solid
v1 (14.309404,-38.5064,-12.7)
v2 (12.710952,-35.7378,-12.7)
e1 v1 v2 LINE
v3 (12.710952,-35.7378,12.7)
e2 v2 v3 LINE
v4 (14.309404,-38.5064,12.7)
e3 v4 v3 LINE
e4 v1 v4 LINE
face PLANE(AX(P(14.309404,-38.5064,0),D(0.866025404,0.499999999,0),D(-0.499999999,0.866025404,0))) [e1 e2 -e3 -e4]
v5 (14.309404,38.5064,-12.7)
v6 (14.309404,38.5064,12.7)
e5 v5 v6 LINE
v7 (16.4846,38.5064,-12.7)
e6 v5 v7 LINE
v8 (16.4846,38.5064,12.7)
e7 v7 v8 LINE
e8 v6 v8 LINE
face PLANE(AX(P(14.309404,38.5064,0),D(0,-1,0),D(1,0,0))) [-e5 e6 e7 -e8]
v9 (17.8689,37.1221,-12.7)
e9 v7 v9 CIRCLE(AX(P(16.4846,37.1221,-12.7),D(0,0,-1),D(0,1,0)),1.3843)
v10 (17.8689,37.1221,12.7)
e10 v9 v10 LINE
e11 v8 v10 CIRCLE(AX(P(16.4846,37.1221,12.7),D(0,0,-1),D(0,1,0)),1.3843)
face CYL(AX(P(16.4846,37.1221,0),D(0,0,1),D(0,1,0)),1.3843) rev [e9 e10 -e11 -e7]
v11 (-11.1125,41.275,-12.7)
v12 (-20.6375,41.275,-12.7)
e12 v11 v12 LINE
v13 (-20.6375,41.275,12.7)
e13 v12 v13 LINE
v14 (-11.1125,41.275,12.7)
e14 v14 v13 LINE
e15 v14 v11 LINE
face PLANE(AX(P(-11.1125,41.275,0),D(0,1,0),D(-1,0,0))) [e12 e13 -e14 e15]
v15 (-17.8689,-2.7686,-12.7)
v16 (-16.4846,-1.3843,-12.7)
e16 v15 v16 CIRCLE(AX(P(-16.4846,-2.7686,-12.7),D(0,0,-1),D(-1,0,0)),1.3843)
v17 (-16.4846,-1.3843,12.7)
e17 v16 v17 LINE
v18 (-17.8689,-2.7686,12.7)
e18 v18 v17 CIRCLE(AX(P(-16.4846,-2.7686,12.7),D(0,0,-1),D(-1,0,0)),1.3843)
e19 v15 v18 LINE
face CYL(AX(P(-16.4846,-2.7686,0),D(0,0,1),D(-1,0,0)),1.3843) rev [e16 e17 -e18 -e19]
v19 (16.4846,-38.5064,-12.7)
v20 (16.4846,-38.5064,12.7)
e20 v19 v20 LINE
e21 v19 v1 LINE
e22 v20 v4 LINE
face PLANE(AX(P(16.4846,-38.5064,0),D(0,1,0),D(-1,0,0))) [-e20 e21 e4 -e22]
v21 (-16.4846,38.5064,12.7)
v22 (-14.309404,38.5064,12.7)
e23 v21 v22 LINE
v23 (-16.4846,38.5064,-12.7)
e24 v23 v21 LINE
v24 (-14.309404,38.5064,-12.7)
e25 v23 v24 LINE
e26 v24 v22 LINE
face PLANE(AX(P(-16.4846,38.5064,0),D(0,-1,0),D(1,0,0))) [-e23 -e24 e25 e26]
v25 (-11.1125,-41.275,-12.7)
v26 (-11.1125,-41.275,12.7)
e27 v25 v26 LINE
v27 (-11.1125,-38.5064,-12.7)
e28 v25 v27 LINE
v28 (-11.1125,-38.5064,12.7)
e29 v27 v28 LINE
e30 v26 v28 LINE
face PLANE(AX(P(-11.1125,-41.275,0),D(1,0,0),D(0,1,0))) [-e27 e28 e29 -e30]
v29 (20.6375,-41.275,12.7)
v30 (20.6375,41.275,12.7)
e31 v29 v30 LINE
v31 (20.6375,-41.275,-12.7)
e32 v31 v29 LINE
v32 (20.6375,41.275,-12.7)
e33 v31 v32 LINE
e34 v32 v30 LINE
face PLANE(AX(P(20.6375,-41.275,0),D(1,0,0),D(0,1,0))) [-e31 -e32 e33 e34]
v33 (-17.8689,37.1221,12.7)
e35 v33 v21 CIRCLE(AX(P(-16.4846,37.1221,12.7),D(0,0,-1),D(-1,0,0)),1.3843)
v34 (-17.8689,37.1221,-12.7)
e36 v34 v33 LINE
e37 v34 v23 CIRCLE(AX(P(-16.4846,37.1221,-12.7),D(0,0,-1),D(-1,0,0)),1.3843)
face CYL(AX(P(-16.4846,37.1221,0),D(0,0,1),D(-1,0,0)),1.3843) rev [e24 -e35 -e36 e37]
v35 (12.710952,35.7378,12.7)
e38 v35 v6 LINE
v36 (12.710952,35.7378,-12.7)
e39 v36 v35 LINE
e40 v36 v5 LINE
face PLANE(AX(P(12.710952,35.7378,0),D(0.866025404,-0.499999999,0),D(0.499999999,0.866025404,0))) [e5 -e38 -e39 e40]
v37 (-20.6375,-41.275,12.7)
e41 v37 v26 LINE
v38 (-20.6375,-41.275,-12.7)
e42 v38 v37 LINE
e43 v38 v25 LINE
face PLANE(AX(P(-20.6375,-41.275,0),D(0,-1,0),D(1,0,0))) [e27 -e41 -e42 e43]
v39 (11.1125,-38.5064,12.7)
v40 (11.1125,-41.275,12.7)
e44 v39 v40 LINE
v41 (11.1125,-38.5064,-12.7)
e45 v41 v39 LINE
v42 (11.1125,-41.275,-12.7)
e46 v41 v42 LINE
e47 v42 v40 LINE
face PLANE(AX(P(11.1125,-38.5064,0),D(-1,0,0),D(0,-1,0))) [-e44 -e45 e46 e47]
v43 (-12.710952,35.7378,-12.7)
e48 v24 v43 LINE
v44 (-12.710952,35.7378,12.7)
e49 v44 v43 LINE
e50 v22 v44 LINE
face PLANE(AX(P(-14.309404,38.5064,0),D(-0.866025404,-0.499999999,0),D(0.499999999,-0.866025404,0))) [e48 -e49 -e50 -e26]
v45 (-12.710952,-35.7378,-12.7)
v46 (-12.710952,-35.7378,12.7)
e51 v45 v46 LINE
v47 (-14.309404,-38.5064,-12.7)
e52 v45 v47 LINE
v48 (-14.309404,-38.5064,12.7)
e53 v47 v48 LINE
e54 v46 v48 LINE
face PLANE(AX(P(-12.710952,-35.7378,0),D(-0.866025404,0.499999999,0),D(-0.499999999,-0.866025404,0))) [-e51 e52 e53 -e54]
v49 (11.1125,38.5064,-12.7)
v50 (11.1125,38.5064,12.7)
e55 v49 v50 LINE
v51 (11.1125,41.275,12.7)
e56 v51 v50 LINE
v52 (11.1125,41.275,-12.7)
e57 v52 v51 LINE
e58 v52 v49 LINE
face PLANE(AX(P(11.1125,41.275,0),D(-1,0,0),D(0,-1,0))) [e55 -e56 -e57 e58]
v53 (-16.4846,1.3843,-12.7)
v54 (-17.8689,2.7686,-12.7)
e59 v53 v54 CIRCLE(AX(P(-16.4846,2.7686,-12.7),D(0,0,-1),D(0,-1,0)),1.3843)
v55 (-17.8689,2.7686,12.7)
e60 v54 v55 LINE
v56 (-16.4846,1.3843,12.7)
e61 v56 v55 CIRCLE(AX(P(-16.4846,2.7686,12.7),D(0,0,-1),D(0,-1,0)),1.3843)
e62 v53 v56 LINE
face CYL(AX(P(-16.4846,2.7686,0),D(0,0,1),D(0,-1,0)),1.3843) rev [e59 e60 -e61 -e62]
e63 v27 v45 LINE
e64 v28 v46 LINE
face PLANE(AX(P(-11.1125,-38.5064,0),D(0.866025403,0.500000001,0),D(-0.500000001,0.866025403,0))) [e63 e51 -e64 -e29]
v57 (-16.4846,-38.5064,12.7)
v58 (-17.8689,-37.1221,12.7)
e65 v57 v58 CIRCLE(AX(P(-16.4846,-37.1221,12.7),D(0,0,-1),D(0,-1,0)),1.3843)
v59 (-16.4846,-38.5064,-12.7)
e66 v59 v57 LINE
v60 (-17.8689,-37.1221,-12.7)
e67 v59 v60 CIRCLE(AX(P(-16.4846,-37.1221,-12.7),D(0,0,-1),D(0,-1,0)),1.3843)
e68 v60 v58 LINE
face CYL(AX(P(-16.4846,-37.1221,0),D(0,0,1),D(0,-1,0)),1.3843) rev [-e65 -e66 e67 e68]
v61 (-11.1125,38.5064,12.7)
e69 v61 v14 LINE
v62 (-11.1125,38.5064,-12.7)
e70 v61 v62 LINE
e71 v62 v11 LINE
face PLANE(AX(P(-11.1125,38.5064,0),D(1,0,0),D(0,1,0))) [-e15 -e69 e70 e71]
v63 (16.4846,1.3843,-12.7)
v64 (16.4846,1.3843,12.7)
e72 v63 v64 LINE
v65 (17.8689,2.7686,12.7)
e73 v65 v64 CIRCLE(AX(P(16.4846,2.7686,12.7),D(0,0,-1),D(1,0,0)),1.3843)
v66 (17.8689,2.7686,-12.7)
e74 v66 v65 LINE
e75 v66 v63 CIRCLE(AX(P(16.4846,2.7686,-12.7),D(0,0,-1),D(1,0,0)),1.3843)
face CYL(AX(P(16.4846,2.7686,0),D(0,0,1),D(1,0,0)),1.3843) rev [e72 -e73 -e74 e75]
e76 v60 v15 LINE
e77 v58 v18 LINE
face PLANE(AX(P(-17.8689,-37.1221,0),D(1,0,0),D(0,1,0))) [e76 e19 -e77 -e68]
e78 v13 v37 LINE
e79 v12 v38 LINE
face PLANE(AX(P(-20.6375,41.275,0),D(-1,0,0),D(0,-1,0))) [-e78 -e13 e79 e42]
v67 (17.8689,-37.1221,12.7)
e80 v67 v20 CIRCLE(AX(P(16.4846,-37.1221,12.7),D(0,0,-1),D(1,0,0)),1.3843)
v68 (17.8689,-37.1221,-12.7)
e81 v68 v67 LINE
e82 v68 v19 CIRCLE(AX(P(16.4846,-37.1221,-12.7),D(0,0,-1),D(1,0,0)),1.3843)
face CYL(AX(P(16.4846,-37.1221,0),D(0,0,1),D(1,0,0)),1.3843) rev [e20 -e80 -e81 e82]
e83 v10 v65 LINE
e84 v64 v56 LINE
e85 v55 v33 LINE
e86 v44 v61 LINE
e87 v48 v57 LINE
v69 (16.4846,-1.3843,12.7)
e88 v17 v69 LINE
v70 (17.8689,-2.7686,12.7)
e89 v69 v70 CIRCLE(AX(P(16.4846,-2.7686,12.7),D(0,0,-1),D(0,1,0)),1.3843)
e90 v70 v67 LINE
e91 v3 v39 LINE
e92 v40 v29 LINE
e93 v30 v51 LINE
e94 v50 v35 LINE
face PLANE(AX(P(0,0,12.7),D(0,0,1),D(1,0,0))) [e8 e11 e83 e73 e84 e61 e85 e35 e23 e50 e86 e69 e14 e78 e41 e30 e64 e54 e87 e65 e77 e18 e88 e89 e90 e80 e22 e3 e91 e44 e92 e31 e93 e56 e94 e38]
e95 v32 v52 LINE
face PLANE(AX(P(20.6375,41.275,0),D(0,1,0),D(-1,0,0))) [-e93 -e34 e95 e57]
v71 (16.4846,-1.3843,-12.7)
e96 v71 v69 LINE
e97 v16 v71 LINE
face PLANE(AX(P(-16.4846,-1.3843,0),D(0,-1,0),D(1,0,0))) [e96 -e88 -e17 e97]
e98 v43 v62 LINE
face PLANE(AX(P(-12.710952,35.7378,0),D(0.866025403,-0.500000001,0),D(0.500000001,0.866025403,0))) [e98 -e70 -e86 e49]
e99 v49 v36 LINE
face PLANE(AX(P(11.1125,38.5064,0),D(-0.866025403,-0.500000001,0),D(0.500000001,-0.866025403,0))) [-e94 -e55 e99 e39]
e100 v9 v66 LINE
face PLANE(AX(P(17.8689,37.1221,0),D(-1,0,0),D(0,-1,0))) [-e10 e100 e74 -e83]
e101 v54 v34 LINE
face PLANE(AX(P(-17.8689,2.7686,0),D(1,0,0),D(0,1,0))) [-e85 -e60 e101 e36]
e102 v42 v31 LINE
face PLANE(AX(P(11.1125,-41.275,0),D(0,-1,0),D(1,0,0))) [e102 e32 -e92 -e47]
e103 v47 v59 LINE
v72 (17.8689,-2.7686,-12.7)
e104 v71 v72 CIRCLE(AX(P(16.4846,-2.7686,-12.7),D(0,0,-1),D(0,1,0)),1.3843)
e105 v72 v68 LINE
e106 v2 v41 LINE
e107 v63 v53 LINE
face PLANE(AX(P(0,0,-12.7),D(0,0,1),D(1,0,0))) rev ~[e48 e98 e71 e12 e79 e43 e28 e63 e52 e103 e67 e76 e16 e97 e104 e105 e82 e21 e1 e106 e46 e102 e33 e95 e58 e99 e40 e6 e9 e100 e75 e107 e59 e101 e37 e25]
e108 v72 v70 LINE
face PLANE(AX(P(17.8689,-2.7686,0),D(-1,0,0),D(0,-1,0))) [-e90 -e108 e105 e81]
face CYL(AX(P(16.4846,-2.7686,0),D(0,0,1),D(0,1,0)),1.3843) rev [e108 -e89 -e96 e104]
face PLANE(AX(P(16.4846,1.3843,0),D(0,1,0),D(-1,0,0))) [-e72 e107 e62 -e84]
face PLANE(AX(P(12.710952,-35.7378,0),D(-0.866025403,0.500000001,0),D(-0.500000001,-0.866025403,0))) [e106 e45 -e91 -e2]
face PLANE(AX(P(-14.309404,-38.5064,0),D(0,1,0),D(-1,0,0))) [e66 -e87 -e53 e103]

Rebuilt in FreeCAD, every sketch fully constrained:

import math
import FreeCAD as App
import Part
import Sketcher
Q = App.Units.Quantity

doc = App.newDocument("Part")
body = doc.addObject("PartDesign::Body", "Body")

sketch1 = doc.addObject("Sketcher::SketchObject", "Sketch")
body.addObject(sketch1)
sketch1.AttachmentSupport = (doc.XY_Plane, [""])
sketch1.MapMode = "FlatFace"
sketch1.addGeometry([
    Part.LineSegment(App.Vector(-11.1125, 41.275, 0), App.Vector(-20.6375, 41.275, 0)),
    Part.LineSegment(App.Vector(-20.6375, 41.275, 0), App.Vector(-20.6375, -41.275, 0)),
    Part.LineSegment(App.Vector(-20.6375, -41.275, 0), App.Vector(-11.1125, -41.275, 0)),
    Part.LineSegment(App.Vector(-11.1125, -41.275, 0), App.Vector(-11.1125, -38.5064, 0)),
    Part.LineSegment(App.Vector(-11.1125, -38.5064, 0), App.Vector(-12.710952, -35.7378, 0)),
    Part.LineSegment(App.Vector(-12.710952, -35.7378, 0), App.Vector(-14.309404, -38.5064, 0)),
    Part.LineSegment(App.Vector(-14.309404, -38.5064, 0), App.Vector(-16.4846, -38.5064, 0)),
    Part.ArcOfCircle(Part.Circle(App.Vector(-16.4846, -37.1221, 0), App.Vector(0, 0, 1), 1.3843), math.radians(-180), math.radians(-90)),
    Part.LineSegment(App.Vector(-17.8689, -37.1221, 0), App.Vector(-17.8689, -2.7686, 0)),
    Part.ArcOfCircle(Part.Circle(App.Vector(-16.4846, -2.7686, 0), App.Vector(0, 0, 1), 1.3843), math.radians(90), math.radians(180)),
    Part.LineSegment(App.Vector(-16.4846, -1.3843, 0), App.Vector(16.4846, -1.3843, 0)),
    Part.ArcOfCircle(Part.Circle(App.Vector(16.4846, -2.7686, 0), App.Vector(0, 0, 1), 1.3843), math.radians(0), math.radians(90)),
    Part.LineSegment(App.Vector(17.8689, -2.7686, 0), App.Vector(17.8689, -37.1221, 0)),
    Part.ArcOfCircle(Part.Circle(App.Vector(16.4846, -37.1221, 0), App.Vector(0, 0, 1), 1.3843), math.radians(-90), math.radians(0)),
    Part.LineSegment(App.Vector(16.4846, -38.5064, 0), App.Vector(14.309404, -38.5064, 0)),
    Part.LineSegment(App.Vector(14.309404, -38.5064, 0), App.Vector(12.710952, -35.7378, 0)),
    Part.LineSegment(App.Vector(12.710952, -35.7378, 0), App.Vector(11.1125, -38.5064, 0)),
    Part.LineSegment(App.Vector(11.1125, -38.5064, 0), App.Vector(11.1125, -41.275, 0)),
    Part.LineSegment(App.Vector(11.1125, -41.275, 0), App.Vector(20.6375, -41.275, 0)),
    Part.LineSegment(App.Vector(20.6375, -41.275, 0), App.Vector(20.6375, 41.275, 0)),
    Part.LineSegment(App.Vector(20.6375, 41.275, 0), App.Vector(11.1125, 41.275, 0)),
    Part.LineSegment(App.Vector(11.1125, 41.275, 0), App.Vector(11.1125, 38.5064, 0)),
    Part.LineSegment(App.Vector(11.1125, 38.5064, 0), App.Vector(12.710952, 35.7378, 0)),
    Part.LineSegment(App.Vector(12.710952, 35.7378, 0), App.Vector(14.309404, 38.5064, 0)),
    Part.LineSegment(App.Vector(14.309404, 38.5064, 0), App.Vector(16.4846, 38.5064, 0)),
    Part.ArcOfCircle(Part.Circle(App.Vector(16.4846, 37.1221, 0), App.Vector(0, 0, 1), 1.3843), math.radians(0), math.radians(90)),
    Part.LineSegment(App.Vector(17.8689, 37.1221, 0), App.Vector(17.8689, 2.7686, 0)),
    Part.ArcOfCircle(Part.Circle(App.Vector(16.4846, 2.7686, 0), App.Vector(0, 0, 1), 1.3843), math.radians(-90), math.radians(0)),
    Part.LineSegment(App.Vector(16.4846, 1.3843, 0), App.Vector(-16.4846, 1.3843, 0)),
    Part.ArcOfCircle(Part.Circle(App.Vector(-16.4846, 2.7686, 0), App.Vector(0, 0, 1), 1.3843), math.radians(-180), math.radians(-90)),
    Part.LineSegment(App.Vector(-17.8689, 2.7686, 0), App.Vector(-17.8689, 37.1221, 0)),
    Part.ArcOfCircle(Part.Circle(App.Vector(-16.4846, 37.1221, 0), App.Vector(0, 0, 1), 1.3843), math.radians(90), math.radians(180)),
    Part.LineSegment(App.Vector(-16.4846, 38.5064, 0), App.Vector(-14.309404, 38.5064, 0)),
    Part.LineSegment(App.Vector(-14.309404, 38.5064, 0), App.Vector(-12.710952, 35.7378, 0)),
    Part.LineSegment(App.Vector(-12.710952, 35.7378, 0), App.Vector(-11.1125, 38.5064, 0)),
    Part.LineSegment(App.Vector(-11.1125, 38.5064, 0), App.Vector(-11.1125, 41.275, 0)),
], False)
sketch1.addConstraint([
    Sketcher.Constraint("Coincident", 0, 2, 1, 1),
    Sketcher.Constraint("Coincident", 1, 2, 2, 1),
    Sketcher.Constraint("Coincident", 2, 2, 3, 1),
    Sketcher.Constraint("Coincident", 3, 2, 4, 1),
    Sketcher.Constraint("Coincident", 4, 2, 5, 1),
    Sketcher.Constraint("Coincident", 5, 2, 6, 1),
    Sketcher.Constraint("Tangent", 6, 2, 7, 2),
    Sketcher.Constraint("Tangent", 7, 1, 8, 1),
    Sketcher.Constraint("Tangent", 8, 2, 9, 2),
    Sketcher.Constraint("Tangent", 9, 1, 10, 1),
    Sketcher.Constraint("Tangent", 10, 2, 11, 2),
    Sketcher.Constraint("Tangent", 11, 1, 12, 1),
    Sketcher.Constraint("Tangent", 12, 2, 13, 2),
    Sketcher.Constraint("Tangent", 13, 1, 14, 1),
    Sketcher.Constraint("Coincident", 14, 2, 15, 1),
    Sketcher.Constraint("Coincident", 15, 2, 16, 1),
    Sketcher.Constraint("Coincident", 16, 2, 17, 1),
    Sketcher.Constraint("Coincident", 17, 2, 18, 1),
    Sketcher.Constraint("Coincident", 18, 2, 19, 1),
    Sketcher.Constraint("Coincident", 19, 2, 20, 1),
    Sketcher.Constraint("Coincident", 20, 2, 21, 1),
    Sketcher.Constraint("Coincident", 21, 2, 22, 1),
    Sketcher.Constraint("Coincident", 22, 2, 23, 1),
    Sketcher.Constraint("Coincident", 23, 2, 24, 1),
    Sketcher.Constraint("Tangent", 24, 2, 25, 2),
    Sketcher.Constraint("Tangent", 25, 1, 26, 1),
    Sketcher.Constraint("Tangent", 26, 2, 27, 2),
    Sketcher.Constraint("Tangent", 27, 1, 28, 1),
    Sketcher.Constraint("Tangent", 28, 2, 29, 2),
    Sketcher.Constraint("Tangent", 29, 1, 30, 1),
    Sketcher.Constraint("Tangent", 30, 2, 31, 2),
    Sketcher.Constraint("Tangent", 31, 1, 32, 1),
    Sketcher.Constraint("Coincident", 32, 2, 33, 1),
    Sketcher.Constraint("Coincident", 33, 2, 34, 1),
    Sketcher.Constraint("Coincident", 34, 2, 35, 1),
    Sketcher.Constraint("Coincident", 35, 2, 0, 1),
    Sketcher.Constraint("Horizontal", 0),
    Sketcher.Constraint("Vertical", 1),
    Sketcher.Constraint("Horizontal", 2),
    Sketcher.Constraint("Vertical", 3),
    Sketcher.Constraint("Horizontal", 6),
    Sketcher.Constraint("Vertical", 8),
    Sketcher.Constraint("Horizontal", 10),
    Sketcher.Constraint("Vertical", 12),
    Sketcher.Constraint("Horizontal", 14),
    Sketcher.Constraint("Vertical", 17),
    Sketcher.Constraint("Horizontal", 18),
    Sketcher.Constraint("Vertical", 19),
    Sketcher.Constraint("Horizontal", 20),
    Sketcher.Constraint("Vertical", 21),
    Sketcher.Constraint("Horizontal", 24),
    Sketcher.Constraint("Vertical", 26),
    Sketcher.Constraint("Horizontal", 28),
    Sketcher.Constraint("Vertical", 30),
    Sketcher.Constraint("Horizontal", 32),
    Sketcher.Constraint("Vertical", 35),
    Sketcher.Constraint("Equal", 7, 9),
    Sketcher.Constraint("Equal", 9, 11),
    Sketcher.Constraint("Equal", 11, 13),
    Sketcher.Constraint("Equal", 13, 25),
    Sketcher.Constraint("Equal", 25, 27),
    Sketcher.Constraint("Equal", 27, 29),
    Sketcher.Constraint("Equal", 29, 31),
    Sketcher.Constraint("Symmetric", 7, 3, 25, 3, -1, 1),
    Sketcher.Constraint("Symmetric", 11, 3, 29, 3, -1, 1),
    Sketcher.Constraint("Symmetric", 0, 2, 18, 2, -1, 1),
    Sketcher.Constraint("Symmetric", 2, 2, 20, 2, -1, 1),
    Sketcher.Constraint("Symmetric", 4, 2, 22, 2, -1, 1),
    Sketcher.Constraint("Symmetric", 14, 2, 32, 2, -1, 1),
    Sketcher.Constraint("Symmetric", 15, 2, 33, 2, -1, 1),
    Sketcher.Constraint("Symmetric", 16, 2, 34, 2, -1, 1),
    Sketcher.Constraint("Symmetric", 7, 3, 13, 3, -2),
    Sketcher.Constraint("Symmetric", 4, 2, 15, 2, -2),
    Sketcher.Constraint("Symmetric", 3, 2, 16, 2, -2),
    Sketcher.Constraint("Parallel", 4, 15),
    Sketcher.Constraint("Parallel", 5, 16),
    Sketcher.Constraint("Parallel", 15, 22),
    Sketcher.Constraint("Parallel", 16, 23),
    Sketcher.Constraint("Horizontal", 3, 2, 5, 2),
    Sketcher.Constraint("Horizontal", 2, 2, 17, 2),
    Sketcher.Constraint("Angle", 4, Q("120 deg")),
    Sketcher.Constraint("DistanceY", 1, 2, 1, 1, Q("3.25 in")),
    Sketcher.Constraint("Radius", 7, Q("0.0545 in")),
    Sketcher.Constraint("DistanceX", 0, 2, 0, 1, Q("0.375 in")),
    Sketcher.Constraint("DistanceX", 10, 1, 10, 2, Q("1.298 in")),
    Sketcher.Constraint("DistanceY", 3, 1, 3, 2, Q("0.109 in")),
    Sketcher.Constraint("DistanceX", 0, 2, 20, 2, Q("1.25 in")),
    Sketcher.Constraint("DistanceY", 8, 1, 8, 2, Q("1.3525 in")),
    Sketcher.Constraint("DistanceY", 4, 2, -1, 1, Q("1.407 in")),
])
pad1 = doc.addObject("PartDesign::Pad", "Pad")
body.addObject(pad1)
pad1.Profile = sketch1
pad1.Length = Q("1 in")
pad1.Midplane = True

doc.recompute()
